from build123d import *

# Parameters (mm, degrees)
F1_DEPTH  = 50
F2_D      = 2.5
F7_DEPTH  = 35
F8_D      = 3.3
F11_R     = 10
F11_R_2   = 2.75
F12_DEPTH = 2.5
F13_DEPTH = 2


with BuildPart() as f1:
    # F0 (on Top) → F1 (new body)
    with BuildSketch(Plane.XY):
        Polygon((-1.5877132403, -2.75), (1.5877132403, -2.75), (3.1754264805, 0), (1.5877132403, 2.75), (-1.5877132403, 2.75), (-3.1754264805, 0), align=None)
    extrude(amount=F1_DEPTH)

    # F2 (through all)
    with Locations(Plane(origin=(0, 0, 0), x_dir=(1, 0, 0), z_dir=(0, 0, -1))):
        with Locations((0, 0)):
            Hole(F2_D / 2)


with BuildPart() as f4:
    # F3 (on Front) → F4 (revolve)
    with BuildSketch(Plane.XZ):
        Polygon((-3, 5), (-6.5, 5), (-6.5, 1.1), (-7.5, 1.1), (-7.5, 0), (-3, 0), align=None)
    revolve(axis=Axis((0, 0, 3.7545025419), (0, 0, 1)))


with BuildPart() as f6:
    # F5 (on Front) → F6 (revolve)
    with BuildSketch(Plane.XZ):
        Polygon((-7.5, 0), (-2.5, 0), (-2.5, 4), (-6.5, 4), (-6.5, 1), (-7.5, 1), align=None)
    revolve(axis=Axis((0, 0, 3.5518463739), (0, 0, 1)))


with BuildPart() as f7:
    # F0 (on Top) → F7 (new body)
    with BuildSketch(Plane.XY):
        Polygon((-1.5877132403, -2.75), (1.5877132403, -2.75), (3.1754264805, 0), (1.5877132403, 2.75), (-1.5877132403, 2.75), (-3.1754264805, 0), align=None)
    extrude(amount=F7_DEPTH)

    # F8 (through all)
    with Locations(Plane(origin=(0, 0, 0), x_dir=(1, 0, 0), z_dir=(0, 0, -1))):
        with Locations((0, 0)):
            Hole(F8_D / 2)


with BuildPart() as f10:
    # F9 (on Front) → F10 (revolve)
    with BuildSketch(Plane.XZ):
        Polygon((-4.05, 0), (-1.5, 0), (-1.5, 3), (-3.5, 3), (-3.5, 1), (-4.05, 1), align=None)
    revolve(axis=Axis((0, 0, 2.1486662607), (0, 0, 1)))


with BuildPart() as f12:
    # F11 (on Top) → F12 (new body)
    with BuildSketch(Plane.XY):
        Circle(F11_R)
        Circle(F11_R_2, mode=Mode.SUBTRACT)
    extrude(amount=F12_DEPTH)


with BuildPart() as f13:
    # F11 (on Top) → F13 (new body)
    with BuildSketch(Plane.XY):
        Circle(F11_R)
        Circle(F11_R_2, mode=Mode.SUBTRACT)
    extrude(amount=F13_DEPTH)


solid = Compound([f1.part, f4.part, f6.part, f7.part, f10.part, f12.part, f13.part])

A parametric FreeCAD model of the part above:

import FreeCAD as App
import Part
import Sketcher
from FreeCAD import Vector
Q = App.Units.Quantity


def add_polygon(sketch, points):
    """Adds a closed chain of lines whose ends are joined by coincident constraints."""
    first, n = sketch.GeometryCount, len(points)
    for a, b in zip(points, points[1:] + points[:1]):
        sketch.addGeometry(Part.LineSegment(App.Vector(*a, 0), App.Vector(*b, 0)), False)
    for i in range(n):
        sketch.addConstraint(Sketcher.Constraint("Coincident", first + i, 2, first + (i + 1) % n, 1))

doc = App.newDocument("Part")
body = doc.addObject("PartDesign::Body", "Body")

# Sketch on XY plane
sketch1 = body.newObject("Sketcher::SketchObject", "Sketch")
sketch1.AttachmentSupport = (doc.getObject("XY_Plane"), [""])
sketch1.MapMode = "FlatFace"
add_polygon(sketch1, [(-1.6, -2.8), (1.6, -2.8), (3.2, 0), (1.6, 2.8), (-1.6, 2.8), (-3.2, 0)])  # lines 0-5
sketch1.addConstraint([
    Sketcher.Constraint("Horizontal", 0),
    Sketcher.Constraint("Horizontal", 3),
    Sketcher.Constraint("Symmetric", 0, 2, 3, 2, -1, 1),
    Sketcher.Constraint("Symmetric", 1, 2, 4, 2, -1, 1),
    Sketcher.Constraint("PointOnObject", 1, 2, -1),
    Sketcher.Constraint("Parallel", 2, 5),
    Sketcher.Constraint("Vertical", 0, 2, 2, 2),
    Sketcher.Constraint("Angle", 1, Q("60 deg")),
    Sketcher.Constraint("DistanceY", 0, 2, 2, 2, 5.5),
    Sketcher.Constraint("DistanceX", 0, 1, 0, 2, 3.175426),
])
pad1 = body.newObject("PartDesign::Pad", "Pad")
pad1.Profile = sketch1
pad1.Length = 50

# Sketch on XY plane
sketch2 = body.newObject("Sketcher::SketchObject", "Sketch001")
sketch2.AttachmentSupport = (doc.getObject("XY_Plane"), [""])
sketch2.MapMode = "FlatFace"
sketch2.addGeometry(Part.Circle(Vector(0, 0, 0), Vector(0, 0, 1), 1.2), False)
sketch2.addConstraint([
    Sketcher.Constraint("Coincident", 0, 3, -1, 1),
    Sketcher.Constraint("Diameter", 0, 2.5),
])
doc.recompute()
hole = body.newObject("PartDesign::Hole", "Hole")
hole.Profile = sketch2
hole.ThreadType = "None"
hole.Diameter = 2.5
hole.DepthType = "ThroughAll"
hole.Reversed = True
body2 = doc.addObject("PartDesign::Body", "Body001")

# Sketch on XZ plane
sketch3 = body2.newObject("Sketcher::SketchObject", "Sketch002")
sketch3.AttachmentSupport = (doc.getObject("XZ_Plane001"), [""])
sketch3.MapMode = "FlatFace"
add_polygon(sketch3, [(-3, 5), (-6.5, 5), (-6.5, 1.1), (-7.5, 1.1), (-7.5, 0), (-3, 0)])  # lines 0-5
sketch3.addConstraint([
    Sketcher.Constraint("Horizontal", 0),
    Sketcher.Constraint("Vertical", 1),
    Sketcher.Constraint("Horizontal", 2),
    Sketcher.Constraint("Vertical", 3),
    Sketcher.Constraint("Horizontal", 4),
    Sketcher.Constraint("Vertical", 5),
    Sketcher.Constraint("PointOnObject", 3, 2, -1),
    Sketcher.Constraint("DistanceX", 2, 2, 2, 1, 1.0),
    Sketcher.Constraint("DistanceY", 5, 1, 5, 2, 5.0),
    Sketcher.Constraint("DistanceX", 0, 2, 0, 1, 3.5),
    Sketcher.Constraint("DistanceY", 1, 2, 1, 1, 3.9),
    Sketcher.Constraint("DistanceX", 4, 2, -1, 1, 3.0),
])
revolution = body2.newObject("PartDesign::Revolution", "Revolution")
revolution.Profile = sketch3
revolution.ReferenceAxis = (sketch3, ["V_Axis"])
revolution.Angle = 360
body3 = doc.addObject("PartDesign::Body", "Body002")

# Sketch on XZ plane
sketch4 = body3.newObject("Sketcher::SketchObject", "Sketch003")
sketch4.AttachmentSupport = (doc.getObject("XZ_Plane002"), [""])
sketch4.MapMode = "FlatFace"
add_polygon(sketch4, [(-7.5, 0), (-2.5, 0), (-2.5, 4), (-6.5, 4), (-6.5, 1), (-7.5, 1)])  # lines 0-5
sketch4.addConstraint([
    Sketcher.Constraint("Horizontal", 0),
    Sketcher.Constraint("Vertical", 1),
    Sketcher.Constraint("Horizontal", 2),
    Sketcher.Constraint("Vertical", 3),
    Sketcher.Constraint("Horizontal", 4),
    Sketcher.Constraint("Vertical", 5),
    Sketcher.Constraint("PointOnObject", 0, 2, -1),
    Sketcher.Constraint("Equal", 2, 1),
    Sketcher.Constraint("Equal", 4, 5),
    Sketcher.Constraint("DistanceX", 0, 1, 0, 2, 5.0),
    Sketcher.Constraint("DistanceX", 2, 2, 2, 1, 4.0),
    Sketcher.Constraint("DistanceX", 0, 2, -1, 1, 2.5),
])
revolution2 = body3.newObject("PartDesign::Revolution", "Revolution001")
revolution2.Profile = sketch4
revolution2.ReferenceAxis = (sketch4, ["V_Axis"])
revolution2.Angle = 360
body4 = doc.addObject("PartDesign::Body", "Body003")

# Sketch on XY plane
sketch5 = body4.newObject("Sketcher::SketchObject", "Sketch004")
sketch5.AttachmentSupport = (doc.getObject("XY_Plane003"), [""])
sketch5.MapMode = "FlatFace"
add_polygon(sketch5, [(-1.6, -2.8), (1.6, -2.8), (3.2, 0), (1.6, 2.8), (-1.6, 2.8), (-3.2, 0)])  # lines 0-5
sketch5.addConstraint([
    Sketcher.Constraint("Horizontal", 0),
    Sketcher.Constraint("Horizontal", 3),
    Sketcher.Constraint("Symmetric", 0, 2, 3, 2, -1, 1),
    Sketcher.Constraint("Symmetric", 1, 2, 4, 2, -1, 1),
    Sketcher.Constraint("PointOnObject", 1, 2, -1),
    Sketcher.Constraint("Parallel", 2, 5),
    Sketcher.Constraint("Vertical", 0, 2, 2, 2),
    Sketcher.Constraint("Angle", 1, Q("60 deg")),
    Sketcher.Constraint("DistanceY", 0, 2, 2, 2, 5.5),
    Sketcher.Constraint("DistanceX", 0, 1, 0, 2, 3.175426),
])
pad2 = body4.newObject("PartDesign::Pad", "Pad001")
pad2.Profile = sketch5
pad2.Length = 35

# Sketch on XY plane
sketch6 = body4.newObject("Sketcher::SketchObject", "Sketch005")
sketch6.AttachmentSupport = (doc.getObject("XY_Plane003"), [""])
sketch6.MapMode = "FlatFace"
sketch6.addGeometry(Part.Circle(Vector(0, 0, 0), Vector(0, 0, 1), 1.6), False)
sketch6.addConstraint([
    Sketcher.Constraint("Coincident", 0, 3, -1, 1),
    Sketcher.Constraint("Diameter", 0, 3.3),
])
doc.recompute()
hole2 = body4.newObject("PartDesign::Hole", "Hole001")
hole2.Profile = sketch6
hole2.ThreadType = "None"
hole2.Diameter = 3.3
hole2.DepthType = "ThroughAll"
hole2.Reversed = True
body5 = doc.addObject("PartDesign::Body", "Body004")

# Sketch on XZ plane
sketch7 = body5.newObject("Sketcher::SketchObject", "Sketch006")
sketch7.AttachmentSupport = (doc.getObject("XZ_Plane004"), [""])
sketch7.MapMode = "FlatFace"
add_polygon(sketch7, [(-4, 0), (-1.5, 0), (-1.5, 3), (-3.5, 3), (-3.5, 1), (-4, 1)])  # lines 0-5
sketch7.addConstraint([
    Sketcher.Constraint("Horizontal", 0),
    Sketcher.Constraint("Vertical", 1),
    Sketcher.Constraint("Horizontal", 2),
    Sketcher.Constraint("Vertical", 3),
    Sketcher.Constraint("Horizontal", 4),
    Sketcher.Constraint("Vertical", 5),
    Sketcher.Constraint("PointOnObject", 0, 2, -1),
    Sketcher.Constraint("Equal", 2, 3),
    Sketcher.Constraint("DistanceX", 2, 2, 2, 1, 2.0),
    Sketcher.Constraint("DistanceY", 1, 1, 1, 2, 3.0),
    Sketcher.Constraint("DistanceX", 0, 1, 0, 2, 2.55),
    Sketcher.Constraint("DistanceX", 0, 2, -1, 1, 1.5),
])
revolution3 = body5.newObject("PartDesign::Revolution", "Revolution002")
revolution3.Profile = sketch7
revolution3.ReferenceAxis = (sketch7, ["V_Axis"])
revolution3.Angle = 360
body6 = doc.addObject("PartDesign::Body", "Body005")

# Sketch on XY plane
sketch8 = body6.newObject("Sketcher::SketchObject", "Sketch007")
sketch8.AttachmentSupport = (doc.getObject("XY_Plane005"), [""])
sketch8.MapMode = "FlatFace"
sketch8.addGeometry([
    Part.Circle(Vector(0, 0, 0), Vector(0, 0, 1), 10),
    Part.Circle(Vector(0, 0, 0), Vector(0, 0, 1), 2.8),
], False)
sketch8.addConstraint([
    Sketcher.Constraint("Coincident", 0, 3, -1, 1),
    Sketcher.Constraint("Coincident", 1, 3, -1, 1),
    Sketcher.Constraint("Diameter", 0, 20.0),
    Sketcher.Constraint("Diameter", 1, 5.5),
])
pad3 = body6.newObject("PartDesign::Pad", "Pad002")
pad3.Profile = sketch8
pad3.Length = 2.5
body7 = doc.addObject("PartDesign::Body", "Body006")

# Sketch on XY plane
sketch9 = body7.newObject("Sketcher::SketchObject", "Sketch008")
sketch9.AttachmentSupport = (doc.getObject("XY_Plane006"), [""])
sketch9.MapMode = "FlatFace"
sketch9.addGeometry([
    Part.Circle(Vector(0, 0, 0), Vector(0, 0, 1), 10),
    Part.Circle(Vector(0, 0, 0), Vector(0, 0, 1), 2.8),
], False)
sketch9.addConstraint([
    Sketcher.Constraint("Coincident", 0, 3, -1, 1),
    Sketcher.Constraint("Coincident", 1, 3, -1, 1),
    Sketcher.Constraint("Diameter", 0, 20.0),
    Sketcher.Constraint("Diameter", 1, 5.5),
])
pad4 = body7.newObject("PartDesign::Pad", "Pad003")
pad4.Profile = sketch9
pad4.Length = 2

doc.recompute()
